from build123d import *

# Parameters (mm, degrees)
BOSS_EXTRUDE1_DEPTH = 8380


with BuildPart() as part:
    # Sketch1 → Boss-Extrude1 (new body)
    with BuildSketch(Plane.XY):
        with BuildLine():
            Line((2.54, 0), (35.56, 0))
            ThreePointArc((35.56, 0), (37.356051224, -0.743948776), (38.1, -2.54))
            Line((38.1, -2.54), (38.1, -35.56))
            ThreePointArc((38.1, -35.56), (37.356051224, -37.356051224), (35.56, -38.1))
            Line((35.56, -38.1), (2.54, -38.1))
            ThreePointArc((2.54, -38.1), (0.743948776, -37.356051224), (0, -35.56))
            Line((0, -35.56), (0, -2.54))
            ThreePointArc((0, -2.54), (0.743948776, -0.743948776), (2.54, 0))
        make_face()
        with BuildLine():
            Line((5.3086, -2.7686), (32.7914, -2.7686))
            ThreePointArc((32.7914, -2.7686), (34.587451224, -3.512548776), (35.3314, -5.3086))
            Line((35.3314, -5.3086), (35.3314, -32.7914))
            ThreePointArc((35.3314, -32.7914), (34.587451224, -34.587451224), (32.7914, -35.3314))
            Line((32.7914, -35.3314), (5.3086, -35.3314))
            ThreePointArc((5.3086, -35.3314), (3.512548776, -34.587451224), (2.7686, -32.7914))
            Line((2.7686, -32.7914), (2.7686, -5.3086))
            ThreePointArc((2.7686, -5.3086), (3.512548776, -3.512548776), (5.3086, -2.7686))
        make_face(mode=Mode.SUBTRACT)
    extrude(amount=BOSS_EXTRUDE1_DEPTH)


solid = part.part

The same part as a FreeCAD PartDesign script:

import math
import FreeCAD as App
import Part
import Sketcher
Q = App.Units.Quantity

doc = App.newDocument("Part")
body = doc.addObject("PartDesign::Body", "Body")

sketch1 = doc.addObject("Sketcher::SketchObject", "Sketch")
body.addObject(sketch1)
sketch1.AttachmentSupport = (doc.XY_Plane, [""])
sketch1.MapMode = "FlatFace"
sketch1.addGeometry([
    Part.LineSegment(App.Vector(35.6, 0, 0), App.Vector(2.5, 0, 0)),
    Part.ArcOfCircle(Part.Circle(App.Vector(2.5, -2.5, 0), App.Vector(0, 0, 1), 2.5), math.radians(90), math.radians(180)),
    Part.LineSegment(App.Vector(0, -2.5, 0), App.Vector(0, -35.6, 0)),
    Part.ArcOfCircle(Part.Circle(App.Vector(2.5, -35.6, 0), App.Vector(0, 0, 1), 2.5), math.radians(-180), math.radians(-90)),
    Part.LineSegment(App.Vector(2.5, -38.1, 0), App.Vector(35.6, -38.1, 0)),
    Part.ArcOfCircle(Part.Circle(App.Vector(35.6, -35.6, 0), App.Vector(0, 0, 1), 2.5), math.radians(-90), math.radians(0)),
    Part.LineSegment(App.Vector(38.1, -35.6, 0), App.Vector(38.1, -2.5, 0)),
    Part.ArcOfCircle(Part.Circle(App.Vector(35.6, -2.5, 0), App.Vector(0, 0, 1), 2.5), math.radians(0), math.radians(90)),
    Part.LineSegment(App.Vector(5.3, -2.8, 0), App.Vector(32.8, -2.8, 0)),
    Part.ArcOfCircle(Part.Circle(App.Vector(32.8, -5.3, 0), App.Vector(0, 0, 1), 2.5), math.radians(0), math.radians(90)),
    Part.LineSegment(App.Vector(35.3, -5.3, 0), App.Vector(35.3, -32.8, 0)),
    Part.ArcOfCircle(Part.Circle(App.Vector(32.8, -32.8, 0), App.Vector(0, 0, 1), 2.5), math.radians(-90), math.radians(0)),
    Part.LineSegment(App.Vector(32.8, -35.3, 0), App.Vector(5.3, -35.3, 0)),
    Part.ArcOfCircle(Part.Circle(App.Vector(5.3, -32.8, 0), App.Vector(0, 0, 1), 2.5), math.radians(-180), math.radians(-90)),
    Part.LineSegment(App.Vector(2.8, -32.8, 0), App.Vector(2.8, -5.3, 0)),
    Part.ArcOfCircle(Part.Circle(App.Vector(5.3, -5.3, 0), App.Vector(0, 0, 1), 2.5), math.radians(90), math.radians(180)),
], False)
sketch1.addConstraint([
    Sketcher.Constraint("Tangent", 0, 2, 1, 1),
    Sketcher.Constraint("Tangent", 1, 2, 2, 1),
    Sketcher.Constraint("Tangent", 2, 2, 3, 1),
    Sketcher.Constraint("Tangent", 3, 2, 4, 1),
    Sketcher.Constraint("Tangent", 4, 2, 5, 1),
    Sketcher.Constraint("Tangent", 5, 2, 6, 1),
    Sketcher.Constraint("Tangent", 6, 2, 7, 1),
    Sketcher.Constraint("Tangent", 7, 2, 0, 1),
    Sketcher.Constraint("Tangent", 8, 2, 9, 2),
    Sketcher.Constraint("Tangent", 9, 1, 10, 1),
    Sketcher.Constraint("Tangent", 10, 2, 11, 2),
    Sketcher.Constraint("Tangent", 11, 1, 12, 1),
    Sketcher.Constraint("Tangent", 12, 2, 13, 2),
    Sketcher.Constraint("Tangent", 13, 1, 14, 1),
    Sketcher.Constraint("Tangent", 14, 2, 15, 2),
    Sketcher.Constraint("Tangent", 15, 1, 8, 1),
    Sketcher.Constraint("Horizontal", 0),
    Sketcher.Constraint("Vertical", 2),
    Sketcher.Constraint("Horizontal", 4),
    Sketcher.Constraint("Vertical", 6),
    Sketcher.Constraint("Horizontal", 8),
    Sketcher.Constraint("Vertical", 10),
    Sketcher.Constraint("Horizontal", 12),
    Sketcher.Constraint("Vertical", 14),
    Sketcher.Constraint("Equal", 1, 3),
    Sketcher.Constraint("Equal", 3, 5),
    Sketcher.Constraint("Equal", 5, 7),
    Sketcher.Constraint("Equal", 7, 9),
    Sketcher.Constraint("Equal", 9, 11),
    Sketcher.Constraint("Equal", 11, 13),
    Sketcher.Constraint("Equal", 13, 15),
    Sketcher.Constraint("PointOnObject", 0, 2, -1),
    Sketcher.Constraint("PointOnObject", 1, 2, -2),
    Sketcher.Constraint("Equal", 4, 2),
    Sketcher.Constraint("Equal", 12, 10),
    Sketcher.Constraint("Radius", 1, Q("0.1 in")),
    Sketcher.Constraint("DistanceX", 0, 2, 0, 1, Q("1.3 in")),
    Sketcher.Constraint("DistanceX", 8, 1, 8, 2, Q("1.082 in")),
    Sketcher.Constraint("DistanceX", -1, 1, 9, 3, Q("1.291 in")),
    Sketcher.Constraint("DistanceY", 9, 3, -1, 1, Q("0.209 in")),
])
pad1 = doc.addObject("PartDesign::Pad", "Pad")
body.addObject(pad1)
pad1.Profile = sketch1
pad1.Length = 8380

doc.recompute()
